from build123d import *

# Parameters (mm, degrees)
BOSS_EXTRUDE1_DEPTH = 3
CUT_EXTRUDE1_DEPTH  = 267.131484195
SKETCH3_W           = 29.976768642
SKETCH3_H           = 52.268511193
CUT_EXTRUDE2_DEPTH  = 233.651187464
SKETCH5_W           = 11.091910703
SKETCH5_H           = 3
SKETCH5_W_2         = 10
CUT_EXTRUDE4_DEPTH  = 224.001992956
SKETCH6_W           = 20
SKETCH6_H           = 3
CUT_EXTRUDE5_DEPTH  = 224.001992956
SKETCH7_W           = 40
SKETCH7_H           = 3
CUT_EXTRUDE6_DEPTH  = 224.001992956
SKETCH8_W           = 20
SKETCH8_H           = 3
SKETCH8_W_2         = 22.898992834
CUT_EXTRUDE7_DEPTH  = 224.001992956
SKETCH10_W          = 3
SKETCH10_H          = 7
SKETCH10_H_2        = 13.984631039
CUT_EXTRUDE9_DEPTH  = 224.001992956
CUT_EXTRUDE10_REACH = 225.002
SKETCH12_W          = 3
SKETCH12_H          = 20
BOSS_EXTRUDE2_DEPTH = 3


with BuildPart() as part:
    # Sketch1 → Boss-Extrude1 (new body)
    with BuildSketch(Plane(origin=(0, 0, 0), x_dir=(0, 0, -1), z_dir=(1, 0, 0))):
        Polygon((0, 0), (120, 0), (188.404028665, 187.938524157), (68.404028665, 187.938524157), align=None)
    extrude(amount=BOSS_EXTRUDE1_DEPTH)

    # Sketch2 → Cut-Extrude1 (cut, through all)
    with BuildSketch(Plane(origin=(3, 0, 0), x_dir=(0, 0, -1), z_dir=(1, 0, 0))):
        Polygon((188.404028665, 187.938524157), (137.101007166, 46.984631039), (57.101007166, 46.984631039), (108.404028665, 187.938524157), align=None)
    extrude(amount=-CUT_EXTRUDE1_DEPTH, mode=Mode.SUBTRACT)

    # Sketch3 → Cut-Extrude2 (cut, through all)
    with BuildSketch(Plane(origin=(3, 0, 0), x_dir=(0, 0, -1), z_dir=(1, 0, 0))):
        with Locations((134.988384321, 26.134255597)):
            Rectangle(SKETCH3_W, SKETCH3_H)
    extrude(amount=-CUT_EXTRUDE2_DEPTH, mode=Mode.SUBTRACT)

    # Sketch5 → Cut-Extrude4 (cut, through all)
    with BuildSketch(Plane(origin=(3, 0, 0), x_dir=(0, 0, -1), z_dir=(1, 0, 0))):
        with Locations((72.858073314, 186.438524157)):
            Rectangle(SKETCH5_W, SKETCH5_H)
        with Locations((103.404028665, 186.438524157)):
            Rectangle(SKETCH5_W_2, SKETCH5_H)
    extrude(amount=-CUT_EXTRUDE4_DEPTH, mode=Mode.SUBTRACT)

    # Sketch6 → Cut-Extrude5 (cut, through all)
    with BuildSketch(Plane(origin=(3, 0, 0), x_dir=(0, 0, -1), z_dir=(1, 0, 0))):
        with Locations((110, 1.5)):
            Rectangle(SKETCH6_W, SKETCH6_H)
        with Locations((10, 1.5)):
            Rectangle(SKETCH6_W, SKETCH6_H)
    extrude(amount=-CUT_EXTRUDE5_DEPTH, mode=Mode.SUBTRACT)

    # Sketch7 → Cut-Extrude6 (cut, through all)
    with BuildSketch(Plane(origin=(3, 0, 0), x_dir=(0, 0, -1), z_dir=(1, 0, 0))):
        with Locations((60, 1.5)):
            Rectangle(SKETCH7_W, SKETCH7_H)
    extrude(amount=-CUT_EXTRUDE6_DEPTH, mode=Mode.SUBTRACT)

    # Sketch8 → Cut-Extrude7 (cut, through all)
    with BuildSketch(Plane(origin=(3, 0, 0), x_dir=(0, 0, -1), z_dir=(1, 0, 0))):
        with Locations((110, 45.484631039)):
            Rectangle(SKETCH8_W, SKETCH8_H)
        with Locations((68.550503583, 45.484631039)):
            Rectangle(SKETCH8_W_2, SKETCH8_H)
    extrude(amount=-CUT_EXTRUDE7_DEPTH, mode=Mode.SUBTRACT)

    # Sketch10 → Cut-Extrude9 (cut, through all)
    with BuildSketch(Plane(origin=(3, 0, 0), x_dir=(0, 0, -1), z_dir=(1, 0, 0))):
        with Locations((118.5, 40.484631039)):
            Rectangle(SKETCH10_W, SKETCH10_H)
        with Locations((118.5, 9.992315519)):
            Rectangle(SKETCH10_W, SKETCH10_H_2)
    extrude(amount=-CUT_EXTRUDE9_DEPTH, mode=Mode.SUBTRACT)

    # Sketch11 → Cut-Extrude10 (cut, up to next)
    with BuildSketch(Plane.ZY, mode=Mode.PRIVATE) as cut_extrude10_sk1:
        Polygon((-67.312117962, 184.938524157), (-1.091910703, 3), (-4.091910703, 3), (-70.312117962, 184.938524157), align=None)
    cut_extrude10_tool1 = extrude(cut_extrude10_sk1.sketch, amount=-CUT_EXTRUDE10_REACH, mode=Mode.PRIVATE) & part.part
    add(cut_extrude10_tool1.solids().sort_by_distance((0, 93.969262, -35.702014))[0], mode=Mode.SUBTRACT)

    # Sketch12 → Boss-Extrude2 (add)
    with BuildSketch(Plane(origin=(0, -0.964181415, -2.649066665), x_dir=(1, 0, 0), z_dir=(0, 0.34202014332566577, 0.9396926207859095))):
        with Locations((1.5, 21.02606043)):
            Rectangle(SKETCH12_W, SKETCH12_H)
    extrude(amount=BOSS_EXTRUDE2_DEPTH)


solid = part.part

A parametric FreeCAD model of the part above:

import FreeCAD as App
import Part
import Sketcher

V = App.Vector
Q = App.Units.Quantity


def add_polygon(sketch, points):
    """Adds a closed chain of lines whose ends are joined by coincident constraints."""
    first, n = sketch.GeometryCount, len(points)
    for a, b in zip(points, points[1:] + points[:1]):
        sketch.addGeometry(Part.LineSegment(App.Vector(*a, 0), App.Vector(*b, 0)), False)
    for i in range(n):
        sketch.addConstraint(Sketcher.Constraint("Coincident", first + i, 2, first + (i + 1) % n, 1))

doc = App.newDocument("Part")
body = doc.addObject("PartDesign::Body", "Body")

# Sketch on YZ plane
sketch1 = body.newObject("Sketcher::SketchObject", "Sketch")
sketch1.AttachmentSupport = (doc.getObject("YZ_Plane"), [""])
sketch1.MapMode = "FlatFace"
add_polygon(sketch1, [(0, 0), (0, -120), (187.938524, -188.404029), (187.938524, -68.404029)])  # lines 0-3
sketch1.addConstraint([
    Sketcher.Constraint("Vertical", 0),
    Sketcher.Constraint("Vertical", 2),
    Sketcher.Constraint("Coincident", 3, 2, -1, 1),
    Sketcher.Constraint("Parallel", 1, 3),
    Sketcher.Constraint("DistanceY", 0, 2, 0, 1, 120.0),
    Sketcher.Constraint("Angle", 1, Q("-20 deg")),
    Sketcher.Constraint("Distance", 1, 200.0),
])
pad1 = body.newObject("PartDesign::Pad", "Pad")
pad1.Profile = sketch1
pad1.Length = 3

# Sketch on YZ plane
sketch2 = body.newObject("Sketcher::SketchObject", "Sketch001")
sketch2.AttachmentSupport = (doc.getObject("YZ_Plane"), [""])
sketch2.MapMode = "FlatFace"
sketch2.AttachmentOffset = App.Placement(V(0, 0, 3), App.Rotation())
add_polygon(sketch2, [(46.984631, -137.101007), (187.938524, -188.404029), (187.938524, -108.404029), (46.984631, -57.101007)])  # lines 0-3
sketch2.addConstraint([
    Sketcher.Constraint("Vertical", 1),
    Sketcher.Constraint("Vertical", 3),
    Sketcher.Constraint("Parallel", 0, 2),
    Sketcher.Constraint("DistanceY", 1, 1, 1, 2, 80.0),
    Sketcher.Constraint("Angle", 0, Q("-20 deg")),
    Sketcher.Constraint("Distance", 0, 150.0),
    Sketcher.Constraint("DistanceY", 0, 2, -1, 1, 188.404029),
    Sketcher.Constraint("DistanceX", -1, 1, 2, 2, 46.984631),
])
pocket1 = body.newObject("PartDesign::Pocket", "Pocket")
pocket1.Profile = sketch2
pocket1.Type = "ThroughAll"

# Sketch on YZ plane
sketch3 = body.newObject("Sketcher::SketchObject", "Sketch002")
sketch3.AttachmentSupport = (doc.getObject("YZ_Plane"), [""])
sketch3.MapMode = "FlatFace"
sketch3.AttachmentOffset = App.Placement(V(0, 0, 3), App.Rotation())
add_polygon(sketch3, [(52.268511, -120), (0, -120), (0, -149.976769), (52.268511, -149.976769)])  # lines 0-3
sketch3.addConstraint([
    Sketcher.Constraint("Horizontal", 0),
    Sketcher.Constraint("Vertical", 1),
    Sketcher.Constraint("Horizontal", 2),
    Sketcher.Constraint("Vertical", 3),
    Sketcher.Constraint("PointOnObject", 0, 2, -2),
    Sketcher.Constraint("DistanceY", 0, 2, -1, 1, 120.0),
    Sketcher.Constraint("DistanceX", 0, 2, 0, 1, 52.268511),
    Sketcher.Constraint("DistanceY", 1, 2, 1, 1, 29.976769),
])
pocket2 = body.newObject("PartDesign::Pocket", "Pocket001")
pocket2.Profile = sketch3
pocket2.Type = "ThroughAll"

# Sketch on YZ plane
sketch4 = body.newObject("Sketcher::SketchObject", "Sketch003")
sketch4.AttachmentSupport = (doc.getObject("YZ_Plane"), [""])
sketch4.MapMode = "FlatFace"
sketch4.AttachmentOffset = App.Placement(V(0, 0, 3), App.Rotation())
add_polygon(sketch4, [(187.938524, -67.312118), (184.938524, -67.312118), (184.938524, -78.404029), (187.938524, -78.404029)])  # lines 0-3
add_polygon(sketch4, [(187.938524, -98.404029), (184.938524, -98.404029), (184.938524, -108.404029), (187.938524, -108.404029)])  # lines 4-7
sketch4.addConstraint([
    Sketcher.Constraint("Horizontal", 0),
    Sketcher.Constraint("Vertical", 1),
    Sketcher.Constraint("Horizontal", 2),
    Sketcher.Constraint("Vertical", 3),
    Sketcher.Constraint("Horizontal", 4),
    Sketcher.Constraint("Vertical", 5),
    Sketcher.Constraint("Horizontal", 6),
    Sketcher.Constraint("Vertical", 7),
    Sketcher.Constraint("Vertical", 1, 2, 4, 2),
    Sketcher.Constraint("Vertical", 3, 2, 6, 2),
    Sketcher.Constraint("DistanceX", 0, 2, 0, 1, 3.0),
    Sketcher.Constraint("DistanceY", 5, 2, 5, 1, 10.0),
    Sketcher.Constraint("DistanceY", 4, 2, 1, 2, 20.0),
    Sketcher.Constraint("DistanceY", 1, 2, 1, 1, 11.091911),
    Sketcher.Constraint("DistanceY", 1, 2, -1, 1, 78.404029),
    Sketcher.Constraint("DistanceX", -1, 1, 0, 2, 184.938524),
])
pocket3 = body.newObject("PartDesign::Pocket", "Pocket002")
pocket3.Profile = sketch4
pocket3.Type = "ThroughAll"

# Sketch on YZ plane
sketch5 = body.newObject("Sketcher::SketchObject", "Sketch004")
sketch5.AttachmentSupport = (doc.getObject("YZ_Plane"), [""])
sketch5.MapMode = "FlatFace"
sketch5.AttachmentOffset = App.Placement(V(0, 0, 3), App.Rotation())
add_polygon(sketch5, [(3, -100), (0, -100), (0, -120), (3, -120)])  # lines 0-3
add_polygon(sketch5, [(3, 0), (0, 0), (0, -20), (3, -20)])  # lines 4-7
sketch5.addConstraint([
    Sketcher.Constraint("Horizontal", 0),
    Sketcher.Constraint("Vertical", 1),
    Sketcher.Constraint("Horizontal", 2),
    Sketcher.Constraint("Vertical", 3),
    Sketcher.Constraint("Horizontal", 4),
    Sketcher.Constraint("Vertical", 5),
    Sketcher.Constraint("Horizontal", 6),
    Sketcher.Constraint("Vertical", 7),
    Sketcher.Constraint("Coincident", 4, 2, -1, 1),
    Sketcher.Constraint("PointOnObject", 0, 2, -2),
    Sketcher.Constraint("Vertical", 3, 2, 6, 2),
    Sketcher.Constraint("Equal", 3, 5),
    Sketcher.Constraint("DistanceX", 0, 2, 0, 1, 3.0),
    Sketcher.Constraint("DistanceY", 1, 2, 1, 1, 20.0),
    Sketcher.Constraint("DistanceY", 0, 2, -1, 1, 100.0),
])
pocket4 = body.newObject("PartDesign::Pocket", "Pocket003")
pocket4.Profile = sketch5
pocket4.Type = "ThroughAll"

# Sketch on YZ plane
sketch6 = body.newObject("Sketcher::SketchObject", "Sketch005")
sketch6.AttachmentSupport = (doc.getObject("YZ_Plane"), [""])
sketch6.MapMode = "FlatFace"
sketch6.AttachmentOffset = App.Placement(V(0, 0, 3), App.Rotation())
add_polygon(sketch6, [(3, -40), (0, -40), (0, -80), (3, -80)])  # lines 0-3
sketch6.addConstraint([
    Sketcher.Constraint("Horizontal", 0),
    Sketcher.Constraint("Vertical", 1),
    Sketcher.Constraint("Horizontal", 2),
    Sketcher.Constraint("Vertical", 3),
    Sketcher.Constraint("PointOnObject", 0, 2, -2),
    Sketcher.Constraint("DistanceX", 0, 2, 0, 1, 3.0),
    Sketcher.Constraint("DistanceY", 1, 2, 1, 1, 40.0),
    Sketcher.Constraint("DistanceY", 0, 2, -1, 1, 40.0),
])
pocket5 = body.newObject("PartDesign::Pocket", "Pocket004")
pocket5.Profile = sketch6
pocket5.Type = "ThroughAll"

# Sketch on YZ plane
sketch7 = body.newObject("Sketcher::SketchObject", "Sketch006")
sketch7.AttachmentSupport = (doc.getObject("YZ_Plane"), [""])
sketch7.MapMode = "FlatFace"
sketch7.AttachmentOffset = App.Placement(V(0, 0, 3), App.Rotation())
add_polygon(sketch7, [(46.984631, -100), (43.984631, -100), (43.984631, -120), (46.984631, -120)])  # lines 0-3
add_polygon(sketch7, [(46.984631, -57.101007), (43.984631, -57.101007), (43.984631, -80), (46.984631, -80)])  # lines 4-7
sketch7.addConstraint([
    Sketcher.Constraint("Horizontal", 0),
    Sketcher.Constraint("Vertical", 1),
    Sketcher.Constraint("Horizontal", 2),
    Sketcher.Constraint("Vertical", 3),
    Sketcher.Constraint("Horizontal", 4),
    Sketcher.Constraint("Vertical", 5),
    Sketcher.Constraint("Horizontal", 6),
    Sketcher.Constraint("Vertical", 7),
    Sketcher.Constraint("Vertical", 1, 2, 4, 2),
    Sketcher.Constraint("Vertical", 3, 2, 6, 2),
    Sketcher.Constraint("DistanceX", 0, 2, 0, 1, 3.0),
    Sketcher.Constraint("DistanceY", 1, 2, 1, 1, 20.0),
    Sketcher.Constraint("DistanceY", 0, 2, -1, 1, 100.0),
    Sketcher.Constraint("DistanceY", 5, 2, -1, 1, 80.0),
    Sketcher.Constraint("DistanceY", 5, 2, 5, 1, 22.898993),
    Sketcher.Constraint("DistanceX", -1, 1, 0, 2, 43.984631),
])
pocket6 = body.newObject("PartDesign::Pocket", "Pocket005")
pocket6.Profile = sketch7
pocket6.Type = "ThroughAll"

# Sketch on YZ plane
sketch8 = body.newObject("Sketcher::SketchObject", "Sketch007")
sketch8.AttachmentSupport = (doc.getObject("YZ_Plane"), [""])
sketch8.MapMode = "FlatFace"
sketch8.AttachmentOffset = App.Placement(V(0, 0, 3), App.Rotation())
add_polygon(sketch8, [(43.984631, -117), (36.984631, -117), (36.984631, -120), (43.984631, -120)])  # lines 0-3
add_polygon(sketch8, [(16.984631, -117), (3, -117), (3, -120), (16.984631, -120)])  # lines 4-7
sketch8.addConstraint([
    Sketcher.Constraint("Horizontal", 0),
    Sketcher.Constraint("Vertical", 1),
    Sketcher.Constraint("Horizontal", 2),
    Sketcher.Constraint("Vertical", 3),
    Sketcher.Constraint("Horizontal", 4),
    Sketcher.Constraint("Vertical", 5),
    Sketcher.Constraint("Horizontal", 6),
    Sketcher.Constraint("Vertical", 7),
    Sketcher.Constraint("Horizontal", 3, 2, 4, 2),
    Sketcher.Constraint("Horizontal", 2, 2, 5, 2),
    Sketcher.Constraint("DistanceX", 0, 2, 0, 1, 7.0),
    Sketcher.Constraint("DistanceY", 1, 2, 1, 1, 3.0),
    Sketcher.Constraint("DistanceY", 0, 2, -1, 1, 117.0),
    Sketcher.Constraint("DistanceX", -1, 1, 4, 2, 3.0),
    Sketcher.Constraint("DistanceX", 6, 2, 1, 2, 20.0),
    Sketcher.Constraint("DistanceX", 4, 2, 4, 1, 13.984631),
])
pocket7 = body.newObject("PartDesign::Pocket", "Pocket006")
pocket7.Profile = sketch8
pocket7.Type = "ThroughAll"

# Sketch on YZ plane
sketch9 = body.newObject("Sketcher::SketchObject", "Sketch008")
sketch9.AttachmentSupport = (doc.getObject("YZ_Plane"), [""])
sketch9.MapMode = "FlatFace"
add_polygon(sketch9, [(3, -1.091911), (184.938524, -67.312118), (184.938524, -70.312118), (3, -4.091911)])  # lines 0-3
sketch9.addConstraint([
    Sketcher.Constraint("Vertical", 1),
    Sketcher.Constraint("Vertical", 3),
    Sketcher.Constraint("Parallel", 0, 2),
    Sketcher.Constraint("DistanceY", 1, 2, 1, 1, 3.0),
    Sketcher.Constraint("Angle", 0, Q("-20 deg")),
    Sketcher.Constraint("DistanceX", -1, 1, 2, 2, 3.0),
    Sketcher.Constraint("DistanceY", 2, 2, -1, 1, 4.091911),
    Sketcher.Constraint("Distance", 0, 193.614933),
])
pocket8 = body.newObject("PartDesign::Pocket", "Pocket007")
pocket8.Profile = sketch9
pocket8.Type = "UpToFirst"
pocket8.Reversed = True

# Sketch on an angled plane
sketch10 = body.newObject("Sketcher::SketchObject", "Sketch009")
sketch10.Placement = App.Placement(V(0, -0.964181, -2.649067), App.Rotation(V(1, 0, 0), V(0, 0.939692621, -0.342020143), V(0, 0.342020143, 0.939692621), "ZXY"))
add_polygon(sketch10, [(0, 31.02606), (0, 11.02606), (3, 11.02606), (3, 31.02606)])  # lines 0-3
sketch10.addConstraint([
    Sketcher.Constraint("Vertical", 0),
    Sketcher.Constraint("Horizontal", 1),
    Sketcher.Constraint("Vertical", 2),
    Sketcher.Constraint("Horizontal", 3),
    Sketcher.Constraint("PointOnObject", 0, 2, -2),
    Sketcher.Constraint("DistanceX", 1, 1, 1, 2, 3.0),
    Sketcher.Constraint("DistanceY", 0, 2, 0, 1, 20.0),
    Sketcher.Constraint("DistanceY", -1, 1, 0, 2, 11.02606),
])
pad2 = body.newObject("PartDesign::Pad", "Pad001")
pad2.Profile = sketch10
pad2.Length = 3

doc.recompute()
